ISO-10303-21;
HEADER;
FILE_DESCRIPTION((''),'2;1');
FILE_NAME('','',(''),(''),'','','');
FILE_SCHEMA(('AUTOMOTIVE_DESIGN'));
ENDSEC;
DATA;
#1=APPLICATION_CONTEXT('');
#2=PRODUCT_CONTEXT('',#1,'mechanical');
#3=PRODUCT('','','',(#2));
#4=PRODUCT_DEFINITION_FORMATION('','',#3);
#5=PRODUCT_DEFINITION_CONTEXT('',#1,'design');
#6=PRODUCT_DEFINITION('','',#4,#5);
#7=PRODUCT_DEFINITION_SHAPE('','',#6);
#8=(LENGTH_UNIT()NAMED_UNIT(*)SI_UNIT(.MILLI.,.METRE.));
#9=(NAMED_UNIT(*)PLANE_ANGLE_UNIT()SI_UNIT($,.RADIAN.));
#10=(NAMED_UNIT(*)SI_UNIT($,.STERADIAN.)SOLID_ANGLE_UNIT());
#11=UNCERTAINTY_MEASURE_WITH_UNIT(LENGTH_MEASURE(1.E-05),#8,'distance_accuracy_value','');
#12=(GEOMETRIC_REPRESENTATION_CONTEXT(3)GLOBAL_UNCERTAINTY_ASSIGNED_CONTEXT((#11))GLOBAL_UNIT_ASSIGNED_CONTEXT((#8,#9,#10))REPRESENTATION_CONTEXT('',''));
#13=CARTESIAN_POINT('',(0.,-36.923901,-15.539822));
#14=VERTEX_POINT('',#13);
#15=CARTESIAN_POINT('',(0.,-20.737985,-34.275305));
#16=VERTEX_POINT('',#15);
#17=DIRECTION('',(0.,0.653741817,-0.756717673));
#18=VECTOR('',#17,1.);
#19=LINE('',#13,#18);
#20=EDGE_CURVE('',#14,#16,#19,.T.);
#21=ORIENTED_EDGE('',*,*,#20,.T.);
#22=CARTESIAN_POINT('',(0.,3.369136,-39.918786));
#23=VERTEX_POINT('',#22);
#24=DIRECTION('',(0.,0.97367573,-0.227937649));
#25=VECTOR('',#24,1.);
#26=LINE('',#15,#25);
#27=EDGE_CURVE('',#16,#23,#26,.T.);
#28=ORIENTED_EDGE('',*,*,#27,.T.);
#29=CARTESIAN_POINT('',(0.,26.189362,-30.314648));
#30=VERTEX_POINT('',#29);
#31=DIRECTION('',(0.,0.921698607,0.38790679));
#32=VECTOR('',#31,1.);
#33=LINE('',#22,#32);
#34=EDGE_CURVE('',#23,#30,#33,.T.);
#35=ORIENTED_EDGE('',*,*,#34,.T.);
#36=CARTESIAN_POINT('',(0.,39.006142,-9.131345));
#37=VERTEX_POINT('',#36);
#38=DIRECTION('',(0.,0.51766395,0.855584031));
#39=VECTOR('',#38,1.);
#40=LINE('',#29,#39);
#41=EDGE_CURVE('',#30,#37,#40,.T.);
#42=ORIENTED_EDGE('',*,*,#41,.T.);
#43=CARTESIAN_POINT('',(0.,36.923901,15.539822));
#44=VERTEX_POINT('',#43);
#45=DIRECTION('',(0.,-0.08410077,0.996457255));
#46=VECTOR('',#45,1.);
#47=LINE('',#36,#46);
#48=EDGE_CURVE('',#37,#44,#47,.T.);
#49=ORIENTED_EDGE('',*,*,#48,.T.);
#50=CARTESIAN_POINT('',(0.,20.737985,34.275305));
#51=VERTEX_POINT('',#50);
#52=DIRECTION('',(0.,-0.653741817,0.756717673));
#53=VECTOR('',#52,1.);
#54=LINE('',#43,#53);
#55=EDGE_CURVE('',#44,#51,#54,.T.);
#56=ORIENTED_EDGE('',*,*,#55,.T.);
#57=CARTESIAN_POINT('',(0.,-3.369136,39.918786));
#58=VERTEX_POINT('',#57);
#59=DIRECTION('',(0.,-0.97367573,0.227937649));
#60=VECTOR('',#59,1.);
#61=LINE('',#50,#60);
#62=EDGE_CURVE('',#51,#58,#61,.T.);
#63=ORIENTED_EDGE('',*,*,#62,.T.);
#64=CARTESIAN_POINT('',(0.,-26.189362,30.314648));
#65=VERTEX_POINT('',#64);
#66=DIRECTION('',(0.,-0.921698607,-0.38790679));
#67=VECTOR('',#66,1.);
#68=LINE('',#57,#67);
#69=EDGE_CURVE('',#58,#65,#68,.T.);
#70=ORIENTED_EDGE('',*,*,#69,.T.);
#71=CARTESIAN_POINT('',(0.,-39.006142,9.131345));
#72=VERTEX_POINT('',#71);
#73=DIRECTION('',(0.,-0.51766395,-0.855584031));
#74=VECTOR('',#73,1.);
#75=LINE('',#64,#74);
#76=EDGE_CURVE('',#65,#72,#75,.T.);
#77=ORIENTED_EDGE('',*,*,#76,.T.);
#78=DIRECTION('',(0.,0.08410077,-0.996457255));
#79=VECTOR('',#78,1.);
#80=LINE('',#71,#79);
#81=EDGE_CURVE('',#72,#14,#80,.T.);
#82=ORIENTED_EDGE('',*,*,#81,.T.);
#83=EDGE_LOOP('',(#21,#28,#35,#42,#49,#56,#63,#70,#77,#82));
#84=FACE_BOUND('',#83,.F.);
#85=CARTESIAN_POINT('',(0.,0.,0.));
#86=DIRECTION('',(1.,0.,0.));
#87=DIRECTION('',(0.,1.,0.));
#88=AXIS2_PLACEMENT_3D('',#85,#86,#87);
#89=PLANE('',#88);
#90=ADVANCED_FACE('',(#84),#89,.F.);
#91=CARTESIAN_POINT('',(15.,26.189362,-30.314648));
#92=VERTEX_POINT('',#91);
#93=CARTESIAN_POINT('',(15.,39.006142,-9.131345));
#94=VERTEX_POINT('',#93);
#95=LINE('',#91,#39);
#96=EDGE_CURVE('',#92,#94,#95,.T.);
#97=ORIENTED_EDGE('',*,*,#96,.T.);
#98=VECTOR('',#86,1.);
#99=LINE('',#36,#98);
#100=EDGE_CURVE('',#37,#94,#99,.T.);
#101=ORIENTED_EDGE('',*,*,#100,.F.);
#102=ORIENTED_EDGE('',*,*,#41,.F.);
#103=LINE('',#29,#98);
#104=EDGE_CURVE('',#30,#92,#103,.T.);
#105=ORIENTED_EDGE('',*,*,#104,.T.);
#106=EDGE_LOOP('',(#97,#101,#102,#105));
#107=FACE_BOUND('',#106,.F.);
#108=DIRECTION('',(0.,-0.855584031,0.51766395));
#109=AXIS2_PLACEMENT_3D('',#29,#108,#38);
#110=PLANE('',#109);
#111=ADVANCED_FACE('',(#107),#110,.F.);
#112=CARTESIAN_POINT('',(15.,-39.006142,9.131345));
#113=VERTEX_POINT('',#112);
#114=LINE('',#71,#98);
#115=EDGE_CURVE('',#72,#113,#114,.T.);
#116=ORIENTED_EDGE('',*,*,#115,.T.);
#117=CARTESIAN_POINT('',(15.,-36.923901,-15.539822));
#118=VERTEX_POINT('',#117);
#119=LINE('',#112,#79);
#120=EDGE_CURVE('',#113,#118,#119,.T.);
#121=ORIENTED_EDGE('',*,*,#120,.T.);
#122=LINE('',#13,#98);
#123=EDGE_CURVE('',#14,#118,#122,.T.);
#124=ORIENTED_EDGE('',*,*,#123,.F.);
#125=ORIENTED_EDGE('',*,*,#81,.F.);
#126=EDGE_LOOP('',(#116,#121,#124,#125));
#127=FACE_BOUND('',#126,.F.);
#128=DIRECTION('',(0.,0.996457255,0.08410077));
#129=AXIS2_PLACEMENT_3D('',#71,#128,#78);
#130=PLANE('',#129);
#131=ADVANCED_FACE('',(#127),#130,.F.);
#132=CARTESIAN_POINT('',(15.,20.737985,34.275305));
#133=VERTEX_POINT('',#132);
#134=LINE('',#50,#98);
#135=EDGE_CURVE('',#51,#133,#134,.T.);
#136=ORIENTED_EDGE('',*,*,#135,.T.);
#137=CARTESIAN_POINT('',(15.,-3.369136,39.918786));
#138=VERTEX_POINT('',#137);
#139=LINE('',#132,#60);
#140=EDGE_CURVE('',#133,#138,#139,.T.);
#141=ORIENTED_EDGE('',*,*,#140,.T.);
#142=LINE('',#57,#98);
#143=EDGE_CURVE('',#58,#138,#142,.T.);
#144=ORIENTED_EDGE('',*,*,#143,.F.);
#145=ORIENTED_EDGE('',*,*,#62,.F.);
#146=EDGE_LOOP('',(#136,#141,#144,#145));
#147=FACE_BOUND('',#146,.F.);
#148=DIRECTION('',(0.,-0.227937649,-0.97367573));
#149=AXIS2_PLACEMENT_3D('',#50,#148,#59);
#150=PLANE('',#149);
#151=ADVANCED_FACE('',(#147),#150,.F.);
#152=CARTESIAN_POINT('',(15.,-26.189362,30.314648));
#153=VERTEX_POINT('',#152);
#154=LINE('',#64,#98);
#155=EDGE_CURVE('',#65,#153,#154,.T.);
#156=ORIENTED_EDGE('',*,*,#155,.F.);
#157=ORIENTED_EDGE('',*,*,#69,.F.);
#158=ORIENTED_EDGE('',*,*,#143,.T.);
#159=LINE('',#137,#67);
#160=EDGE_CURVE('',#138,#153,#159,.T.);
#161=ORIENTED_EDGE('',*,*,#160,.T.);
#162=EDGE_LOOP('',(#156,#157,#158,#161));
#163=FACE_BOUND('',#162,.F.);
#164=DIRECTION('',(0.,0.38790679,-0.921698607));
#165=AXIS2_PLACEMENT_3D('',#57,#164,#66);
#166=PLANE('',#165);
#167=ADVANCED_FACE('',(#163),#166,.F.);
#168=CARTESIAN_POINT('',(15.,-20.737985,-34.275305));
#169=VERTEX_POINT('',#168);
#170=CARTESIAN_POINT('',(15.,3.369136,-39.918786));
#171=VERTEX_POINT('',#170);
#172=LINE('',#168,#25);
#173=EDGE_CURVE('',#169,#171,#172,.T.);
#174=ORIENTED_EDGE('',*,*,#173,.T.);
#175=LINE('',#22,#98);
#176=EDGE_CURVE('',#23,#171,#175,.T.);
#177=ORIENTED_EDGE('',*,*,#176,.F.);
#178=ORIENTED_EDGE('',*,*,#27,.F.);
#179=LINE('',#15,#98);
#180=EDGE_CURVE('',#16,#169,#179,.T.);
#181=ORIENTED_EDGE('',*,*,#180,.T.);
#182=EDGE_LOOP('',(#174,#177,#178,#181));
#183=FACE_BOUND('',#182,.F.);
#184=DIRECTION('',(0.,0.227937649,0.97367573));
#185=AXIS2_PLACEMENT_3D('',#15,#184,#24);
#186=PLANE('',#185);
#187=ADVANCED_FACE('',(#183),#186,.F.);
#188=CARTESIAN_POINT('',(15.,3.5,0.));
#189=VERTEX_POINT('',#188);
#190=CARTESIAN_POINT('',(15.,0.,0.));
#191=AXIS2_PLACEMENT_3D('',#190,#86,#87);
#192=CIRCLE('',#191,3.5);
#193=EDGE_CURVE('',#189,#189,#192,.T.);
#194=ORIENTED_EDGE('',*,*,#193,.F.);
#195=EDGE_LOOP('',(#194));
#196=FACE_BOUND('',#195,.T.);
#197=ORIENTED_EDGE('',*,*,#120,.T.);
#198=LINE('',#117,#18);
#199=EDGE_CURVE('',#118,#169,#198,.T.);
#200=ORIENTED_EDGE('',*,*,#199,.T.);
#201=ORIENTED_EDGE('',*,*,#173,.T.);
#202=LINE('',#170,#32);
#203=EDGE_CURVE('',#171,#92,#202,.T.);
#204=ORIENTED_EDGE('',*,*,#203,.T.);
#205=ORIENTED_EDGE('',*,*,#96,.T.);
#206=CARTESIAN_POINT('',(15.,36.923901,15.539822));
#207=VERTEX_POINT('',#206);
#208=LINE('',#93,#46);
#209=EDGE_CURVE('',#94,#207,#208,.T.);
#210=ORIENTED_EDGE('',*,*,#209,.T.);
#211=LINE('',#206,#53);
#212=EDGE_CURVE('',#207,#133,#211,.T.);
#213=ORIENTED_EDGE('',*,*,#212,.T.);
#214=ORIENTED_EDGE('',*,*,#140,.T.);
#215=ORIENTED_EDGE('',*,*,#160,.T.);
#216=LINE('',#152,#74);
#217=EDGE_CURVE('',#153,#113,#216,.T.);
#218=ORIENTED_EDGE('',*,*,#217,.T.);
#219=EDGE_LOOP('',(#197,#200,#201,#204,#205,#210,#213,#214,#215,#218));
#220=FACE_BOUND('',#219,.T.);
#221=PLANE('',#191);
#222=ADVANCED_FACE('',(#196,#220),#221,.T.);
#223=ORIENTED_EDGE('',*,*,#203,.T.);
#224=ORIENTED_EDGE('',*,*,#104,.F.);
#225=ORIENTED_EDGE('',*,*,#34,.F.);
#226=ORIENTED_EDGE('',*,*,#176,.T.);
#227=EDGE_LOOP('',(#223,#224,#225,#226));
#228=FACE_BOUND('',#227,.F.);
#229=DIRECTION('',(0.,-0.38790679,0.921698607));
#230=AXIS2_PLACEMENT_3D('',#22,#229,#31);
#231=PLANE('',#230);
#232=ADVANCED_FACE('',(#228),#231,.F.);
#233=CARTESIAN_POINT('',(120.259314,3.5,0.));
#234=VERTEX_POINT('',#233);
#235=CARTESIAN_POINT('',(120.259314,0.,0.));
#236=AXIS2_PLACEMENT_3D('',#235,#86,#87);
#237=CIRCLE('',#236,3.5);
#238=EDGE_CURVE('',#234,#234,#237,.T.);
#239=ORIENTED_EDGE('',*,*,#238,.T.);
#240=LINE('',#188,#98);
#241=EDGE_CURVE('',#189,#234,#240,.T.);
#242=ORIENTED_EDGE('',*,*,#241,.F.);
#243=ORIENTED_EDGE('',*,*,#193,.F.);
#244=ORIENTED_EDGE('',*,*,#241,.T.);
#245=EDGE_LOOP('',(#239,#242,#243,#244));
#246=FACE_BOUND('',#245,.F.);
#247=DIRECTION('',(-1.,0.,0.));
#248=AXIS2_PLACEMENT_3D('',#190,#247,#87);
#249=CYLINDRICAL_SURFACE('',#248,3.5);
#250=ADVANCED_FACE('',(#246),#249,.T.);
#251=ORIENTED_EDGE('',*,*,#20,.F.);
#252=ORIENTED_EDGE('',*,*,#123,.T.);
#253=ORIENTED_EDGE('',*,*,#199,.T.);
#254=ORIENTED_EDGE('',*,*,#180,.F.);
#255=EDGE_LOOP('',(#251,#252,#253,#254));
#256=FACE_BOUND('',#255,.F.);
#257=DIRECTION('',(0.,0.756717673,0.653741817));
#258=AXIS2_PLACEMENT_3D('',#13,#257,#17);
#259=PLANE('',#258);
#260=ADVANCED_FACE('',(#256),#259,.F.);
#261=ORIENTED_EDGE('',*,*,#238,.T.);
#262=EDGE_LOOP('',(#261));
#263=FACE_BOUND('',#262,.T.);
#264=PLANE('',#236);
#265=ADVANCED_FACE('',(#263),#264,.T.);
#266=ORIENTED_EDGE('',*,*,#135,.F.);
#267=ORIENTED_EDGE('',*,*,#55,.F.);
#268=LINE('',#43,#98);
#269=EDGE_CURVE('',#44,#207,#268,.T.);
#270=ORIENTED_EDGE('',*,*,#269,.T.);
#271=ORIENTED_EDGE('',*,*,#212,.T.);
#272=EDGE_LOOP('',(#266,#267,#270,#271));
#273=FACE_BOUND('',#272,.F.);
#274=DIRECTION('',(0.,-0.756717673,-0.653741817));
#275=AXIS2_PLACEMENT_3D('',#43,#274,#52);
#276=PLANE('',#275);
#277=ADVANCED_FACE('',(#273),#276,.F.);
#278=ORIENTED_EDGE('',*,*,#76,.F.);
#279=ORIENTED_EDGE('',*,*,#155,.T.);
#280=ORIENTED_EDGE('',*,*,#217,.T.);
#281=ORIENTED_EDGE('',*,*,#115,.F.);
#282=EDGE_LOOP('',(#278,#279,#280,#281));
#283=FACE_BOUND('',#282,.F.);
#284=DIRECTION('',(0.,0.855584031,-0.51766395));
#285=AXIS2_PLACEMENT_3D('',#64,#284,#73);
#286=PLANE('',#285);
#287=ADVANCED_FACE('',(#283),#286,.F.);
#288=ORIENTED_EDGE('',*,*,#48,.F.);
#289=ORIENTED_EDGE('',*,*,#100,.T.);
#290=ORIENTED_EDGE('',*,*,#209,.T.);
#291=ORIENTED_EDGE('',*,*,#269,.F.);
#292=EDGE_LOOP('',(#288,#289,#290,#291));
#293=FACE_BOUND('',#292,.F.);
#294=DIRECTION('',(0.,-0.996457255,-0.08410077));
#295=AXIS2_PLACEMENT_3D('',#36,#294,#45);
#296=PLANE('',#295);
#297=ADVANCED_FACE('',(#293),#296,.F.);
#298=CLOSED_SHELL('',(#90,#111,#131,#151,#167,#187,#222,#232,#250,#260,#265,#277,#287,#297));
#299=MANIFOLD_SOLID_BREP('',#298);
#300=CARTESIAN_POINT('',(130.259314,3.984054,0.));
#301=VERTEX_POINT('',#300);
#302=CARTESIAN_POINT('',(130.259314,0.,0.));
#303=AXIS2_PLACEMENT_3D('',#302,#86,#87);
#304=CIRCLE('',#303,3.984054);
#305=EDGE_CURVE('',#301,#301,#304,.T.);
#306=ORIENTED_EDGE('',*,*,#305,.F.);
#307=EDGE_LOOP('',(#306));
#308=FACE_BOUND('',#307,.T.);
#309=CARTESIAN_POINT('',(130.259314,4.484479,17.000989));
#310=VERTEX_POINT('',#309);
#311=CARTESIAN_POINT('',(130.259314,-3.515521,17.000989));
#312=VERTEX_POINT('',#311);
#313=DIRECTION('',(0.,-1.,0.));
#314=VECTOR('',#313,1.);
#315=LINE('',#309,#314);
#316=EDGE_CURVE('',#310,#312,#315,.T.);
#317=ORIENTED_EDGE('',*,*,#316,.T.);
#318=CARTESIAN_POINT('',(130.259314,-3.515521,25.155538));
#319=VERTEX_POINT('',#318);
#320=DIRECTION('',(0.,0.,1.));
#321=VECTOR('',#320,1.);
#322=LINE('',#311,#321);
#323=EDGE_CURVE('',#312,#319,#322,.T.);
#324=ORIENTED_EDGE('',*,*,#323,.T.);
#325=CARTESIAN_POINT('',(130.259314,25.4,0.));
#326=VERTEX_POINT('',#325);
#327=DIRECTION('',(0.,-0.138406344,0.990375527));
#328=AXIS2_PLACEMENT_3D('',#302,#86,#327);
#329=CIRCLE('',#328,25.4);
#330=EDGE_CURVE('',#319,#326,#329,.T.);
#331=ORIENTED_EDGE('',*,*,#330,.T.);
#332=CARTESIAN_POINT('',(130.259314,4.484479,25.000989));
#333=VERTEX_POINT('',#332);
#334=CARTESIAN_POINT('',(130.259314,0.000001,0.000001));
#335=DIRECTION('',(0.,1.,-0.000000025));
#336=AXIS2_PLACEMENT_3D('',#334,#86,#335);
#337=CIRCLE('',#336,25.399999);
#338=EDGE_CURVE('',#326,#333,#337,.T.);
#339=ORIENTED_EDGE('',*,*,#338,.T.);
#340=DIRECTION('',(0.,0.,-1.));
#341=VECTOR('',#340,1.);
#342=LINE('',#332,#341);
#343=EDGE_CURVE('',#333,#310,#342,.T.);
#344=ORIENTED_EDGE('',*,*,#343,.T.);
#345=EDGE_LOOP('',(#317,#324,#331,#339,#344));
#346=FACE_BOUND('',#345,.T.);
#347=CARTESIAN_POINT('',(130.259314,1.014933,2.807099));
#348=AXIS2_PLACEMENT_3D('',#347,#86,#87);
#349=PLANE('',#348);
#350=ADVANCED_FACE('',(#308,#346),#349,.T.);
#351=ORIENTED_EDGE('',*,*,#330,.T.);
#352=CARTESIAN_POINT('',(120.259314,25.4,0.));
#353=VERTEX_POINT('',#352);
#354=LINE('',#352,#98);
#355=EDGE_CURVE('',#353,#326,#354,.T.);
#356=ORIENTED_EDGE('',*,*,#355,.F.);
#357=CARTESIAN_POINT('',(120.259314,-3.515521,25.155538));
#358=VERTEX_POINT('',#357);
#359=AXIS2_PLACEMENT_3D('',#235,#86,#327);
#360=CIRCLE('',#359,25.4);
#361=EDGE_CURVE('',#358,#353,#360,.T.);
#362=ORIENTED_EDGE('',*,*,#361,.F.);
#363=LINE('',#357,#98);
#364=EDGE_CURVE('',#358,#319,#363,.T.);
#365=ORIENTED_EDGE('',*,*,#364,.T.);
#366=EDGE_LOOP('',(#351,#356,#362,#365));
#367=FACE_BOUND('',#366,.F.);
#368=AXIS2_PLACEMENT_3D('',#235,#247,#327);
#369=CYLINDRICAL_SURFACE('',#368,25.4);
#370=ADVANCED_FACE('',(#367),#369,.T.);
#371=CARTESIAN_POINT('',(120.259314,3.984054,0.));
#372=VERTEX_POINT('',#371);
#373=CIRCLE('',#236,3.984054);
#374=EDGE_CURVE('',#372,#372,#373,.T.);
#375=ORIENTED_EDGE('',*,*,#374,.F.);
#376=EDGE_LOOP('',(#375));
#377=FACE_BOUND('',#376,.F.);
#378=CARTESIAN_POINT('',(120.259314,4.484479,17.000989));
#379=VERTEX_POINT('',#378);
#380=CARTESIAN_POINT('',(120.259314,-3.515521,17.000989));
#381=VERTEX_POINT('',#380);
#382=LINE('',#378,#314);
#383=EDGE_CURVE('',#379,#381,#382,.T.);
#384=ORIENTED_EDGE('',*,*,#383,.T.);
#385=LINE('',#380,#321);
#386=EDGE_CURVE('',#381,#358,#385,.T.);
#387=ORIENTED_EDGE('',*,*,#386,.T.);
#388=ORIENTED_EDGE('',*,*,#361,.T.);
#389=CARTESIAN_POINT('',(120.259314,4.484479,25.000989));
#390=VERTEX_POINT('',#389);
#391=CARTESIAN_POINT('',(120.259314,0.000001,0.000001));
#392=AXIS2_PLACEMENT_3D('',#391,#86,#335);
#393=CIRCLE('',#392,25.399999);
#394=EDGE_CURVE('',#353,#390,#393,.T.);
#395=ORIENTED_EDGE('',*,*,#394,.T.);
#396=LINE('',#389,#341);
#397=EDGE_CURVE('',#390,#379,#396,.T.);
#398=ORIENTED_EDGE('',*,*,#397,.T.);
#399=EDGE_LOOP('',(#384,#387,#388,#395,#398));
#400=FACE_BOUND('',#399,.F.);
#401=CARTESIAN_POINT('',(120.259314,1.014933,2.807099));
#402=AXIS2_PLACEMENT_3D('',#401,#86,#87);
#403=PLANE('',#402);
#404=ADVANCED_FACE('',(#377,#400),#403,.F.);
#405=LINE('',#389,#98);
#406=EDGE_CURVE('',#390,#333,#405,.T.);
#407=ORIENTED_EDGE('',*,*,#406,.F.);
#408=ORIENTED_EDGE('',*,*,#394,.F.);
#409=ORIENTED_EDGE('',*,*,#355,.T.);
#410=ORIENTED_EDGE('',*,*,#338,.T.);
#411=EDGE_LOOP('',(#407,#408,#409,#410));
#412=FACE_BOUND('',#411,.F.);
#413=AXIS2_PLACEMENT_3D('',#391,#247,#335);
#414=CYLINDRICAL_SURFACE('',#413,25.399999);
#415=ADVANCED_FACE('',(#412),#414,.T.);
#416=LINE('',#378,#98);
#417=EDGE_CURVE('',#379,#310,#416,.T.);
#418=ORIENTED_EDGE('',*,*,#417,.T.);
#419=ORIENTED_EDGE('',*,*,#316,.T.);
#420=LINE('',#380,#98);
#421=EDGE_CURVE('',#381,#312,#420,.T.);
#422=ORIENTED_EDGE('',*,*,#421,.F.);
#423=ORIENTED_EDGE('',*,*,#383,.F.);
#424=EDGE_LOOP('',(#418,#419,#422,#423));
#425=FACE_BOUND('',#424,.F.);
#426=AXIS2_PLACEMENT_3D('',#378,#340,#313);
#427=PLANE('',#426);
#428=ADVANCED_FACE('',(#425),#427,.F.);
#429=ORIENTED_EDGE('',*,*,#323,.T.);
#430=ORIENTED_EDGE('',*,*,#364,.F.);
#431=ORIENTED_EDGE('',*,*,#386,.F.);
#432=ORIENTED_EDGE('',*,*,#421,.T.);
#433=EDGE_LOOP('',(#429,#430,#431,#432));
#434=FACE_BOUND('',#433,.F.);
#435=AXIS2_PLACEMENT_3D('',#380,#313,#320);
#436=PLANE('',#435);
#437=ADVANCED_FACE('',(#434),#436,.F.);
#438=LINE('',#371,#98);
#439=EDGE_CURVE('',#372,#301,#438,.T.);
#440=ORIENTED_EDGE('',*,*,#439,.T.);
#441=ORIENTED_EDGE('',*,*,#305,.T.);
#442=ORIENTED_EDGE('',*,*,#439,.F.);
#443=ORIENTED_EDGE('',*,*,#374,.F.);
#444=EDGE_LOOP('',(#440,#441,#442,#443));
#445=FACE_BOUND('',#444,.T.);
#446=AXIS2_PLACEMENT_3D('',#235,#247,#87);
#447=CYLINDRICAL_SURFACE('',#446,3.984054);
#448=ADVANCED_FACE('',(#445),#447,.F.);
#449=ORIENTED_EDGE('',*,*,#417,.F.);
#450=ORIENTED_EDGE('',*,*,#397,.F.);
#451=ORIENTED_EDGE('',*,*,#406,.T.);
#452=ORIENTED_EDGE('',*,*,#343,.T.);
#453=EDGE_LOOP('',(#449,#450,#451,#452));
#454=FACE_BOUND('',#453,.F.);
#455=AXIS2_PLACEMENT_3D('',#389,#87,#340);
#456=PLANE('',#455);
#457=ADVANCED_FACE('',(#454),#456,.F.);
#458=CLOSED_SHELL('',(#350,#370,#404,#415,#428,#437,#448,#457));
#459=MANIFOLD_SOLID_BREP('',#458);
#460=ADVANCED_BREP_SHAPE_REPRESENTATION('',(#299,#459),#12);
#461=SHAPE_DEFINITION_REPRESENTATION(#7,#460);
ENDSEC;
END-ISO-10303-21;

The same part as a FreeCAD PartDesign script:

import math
import FreeCAD as App
import Part
import Sketcher
from FreeCAD import Vector
Q = App.Units.Quantity


def add_polygon(sketch, points):
    """Adds a closed chain of lines whose ends are joined by coincident constraints."""
    first, n = sketch.GeometryCount, len(points)
    for a, b in zip(points, points[1:] + points[:1]):
        sketch.addGeometry(Part.LineSegment(App.Vector(*a, 0), App.Vector(*b, 0)), False)
    for i in range(n):
        sketch.addConstraint(Sketcher.Constraint("Coincident", first + i, 2, first + (i + 1) % n, 1))

doc = App.newDocument("Part")
body = doc.addObject("PartDesign::Body", "Body")

# Sketch on YZ plane
sketch1 = body.newObject("Sketcher::SketchObject", "Sketch")
sketch1.AttachmentSupport = (doc.getObject("YZ_Plane"), [""])
sketch1.MapMode = "FlatFace"
add_polygon(sketch1, [(26.189362, -30.314648), (39.006142, -9.131345), (36.923901, 15.539822), (20.737985, 34.275305), (-3.369136, 39.918786), (-26.189362, 30.314648), (-39.006142, 9.131345), (-36.923901, -15.539822), (-20.737985, -34.275305), (3.369136, -39.918786)])  # lines 0-9
sketch1.addConstraint([
    Sketcher.Constraint("Symmetric", 0, 2, 5, 2, -1, 1),
    Sketcher.Constraint("Symmetric", 1, 2, 6, 2, -1, 1),
    Sketcher.Constraint("Symmetric", 2, 2, 7, 2, -1, 1),
    Sketcher.Constraint("Symmetric", 3, 2, 8, 2, -1, 1),
    Sketcher.Constraint("Symmetric", 4, 2, 9, 2, -1, 1),
    Sketcher.Constraint("Equal", 0, 1),
    Sketcher.Constraint("Equal", 1, 2),
    Sketcher.Constraint("Equal", 2, 3),
    Sketcher.Constraint("Equal", 3, 4),
    Sketcher.Constraint("DistanceX", -1, 1, 1, 2, Q("36.923901 mm")),
    Sketcher.Constraint("Distance", 0, Q("24.758881 mm")),
    Sketcher.Constraint("DistanceX", -1, 1, 0, 2, Q("39.006142 mm")),
    Sketcher.Constraint("DistanceY", -1, 1, 1, 2, Q("15.539822 mm")),
    Sketcher.Constraint("DistanceX", 4, 2, -1, 1, Q("26.189362 mm")),
    Sketcher.Constraint("DistanceY", 0, 2, 2, 2, Q("43.40665 mm")),
])
pad1 = body.newObject("PartDesign::Pad", "Pad")
pad1.Profile = sketch1
pad1.Length = 15

# Sketch on YZ plane
sketch2 = body.newObject("Sketcher::SketchObject", "Sketch001")
sketch2.AttachmentSupport = (doc.getObject("YZ_Plane"), [""])
sketch2.MapMode = "FlatFace"
sketch2.AttachmentOffset = App.Placement(Vector(0, 0, 15), App.Rotation())
sketch2.addGeometry(Part.Circle(Vector(0, 0, 0), Vector(0, 0, 1), 3.5), False)
sketch2.addConstraint([
    Sketcher.Constraint("Coincident", 0, 3, -1, 1),
    Sketcher.Constraint("Diameter", 0, Q("7 mm")),
])
pad2 = body.newObject("PartDesign::Pad", "Pad001")
pad2.Profile = sketch2
pad2.Length = 105.259314
body2 = doc.addObject("PartDesign::Body", "Body001")

# Sketch on YZ plane
sketch3 = body2.newObject("Sketcher::SketchObject", "Sketch002")
sketch3.AttachmentSupport = (doc.getObject("YZ_Plane001"), [""])
sketch3.MapMode = "FlatFace"
sketch3.AttachmentOffset = App.Placement(Vector(0, 0, 120.259314), App.Rotation())
sketch3.addGeometry([
    Part.ArcOfCircle(Part.Circle(Vector(0, 0, 0), Vector(0, 0, 1), 25.4), math.radians(97.955639), math.radians(360.000001)),  # 0
    Part.ArcOfCircle(Part.Circle(Vector(0.000001, 0.000001, 0), Vector(0, 0, 1), 25.399999), math.radians(-0.000001), math.radians(79.83088)),  # 1
    Part.LineSegment(Vector(4.484479, 25.000989, 0), Vector(4.484479, 17.000989, 0)),  # 2
    Part.LineSegment(Vector(4.484479, 17.000989, 0), Vector(-3.515521, 17.000989, 0)),  # 3
    Part.LineSegment(Vector(-3.515521, 17.000989, 0), Vector(-3.515521, 25.155538, 0)),  # 4
    Part.Circle(Vector(0, 0, 0), Vector(0, 0, 1), 3.984054),  # 5
], False)
sketch3.addConstraint([
    Sketcher.Constraint("Tangent", 0, 2, 1, 1),
    Sketcher.Constraint("Coincident", 1, 2, 2, 1),
    Sketcher.Constraint("Coincident", 2, 2, 3, 1),
    Sketcher.Constraint("Coincident", 3, 2, 4, 1),
    Sketcher.Constraint("Coincident", 4, 2, 0, 1),
    Sketcher.Constraint("Vertical", 2),
    Sketcher.Constraint("Horizontal", 3),
    Sketcher.Constraint("Vertical", 4),
    Sketcher.Constraint("Coincident", 0, 3, -1, 1),
    Sketcher.Constraint("Coincident", 5, 3, -1, 1),
    Sketcher.Constraint("Equal", 0, 1),
    Sketcher.Constraint("PointOnObject", 0, 2, -1),
    Sketcher.Constraint("Equal", 3, 2),
    Sketcher.Constraint("Radius", 0, Q("25.4 mm")),
    Sketcher.Constraint("DistanceX", 3, 2, 3, 1, Q("8 mm")),
    Sketcher.Constraint("Diameter", 5, Q("7.968108 mm")),
    Sketcher.Constraint("DistanceY", 4, 1, 4, 2, Q("8.154549 mm")),
])
pad3 = body2.newObject("PartDesign::Pad", "Pad002")
pad3.Profile = sketch3
pad3.Length = 10

doc.recompute()
